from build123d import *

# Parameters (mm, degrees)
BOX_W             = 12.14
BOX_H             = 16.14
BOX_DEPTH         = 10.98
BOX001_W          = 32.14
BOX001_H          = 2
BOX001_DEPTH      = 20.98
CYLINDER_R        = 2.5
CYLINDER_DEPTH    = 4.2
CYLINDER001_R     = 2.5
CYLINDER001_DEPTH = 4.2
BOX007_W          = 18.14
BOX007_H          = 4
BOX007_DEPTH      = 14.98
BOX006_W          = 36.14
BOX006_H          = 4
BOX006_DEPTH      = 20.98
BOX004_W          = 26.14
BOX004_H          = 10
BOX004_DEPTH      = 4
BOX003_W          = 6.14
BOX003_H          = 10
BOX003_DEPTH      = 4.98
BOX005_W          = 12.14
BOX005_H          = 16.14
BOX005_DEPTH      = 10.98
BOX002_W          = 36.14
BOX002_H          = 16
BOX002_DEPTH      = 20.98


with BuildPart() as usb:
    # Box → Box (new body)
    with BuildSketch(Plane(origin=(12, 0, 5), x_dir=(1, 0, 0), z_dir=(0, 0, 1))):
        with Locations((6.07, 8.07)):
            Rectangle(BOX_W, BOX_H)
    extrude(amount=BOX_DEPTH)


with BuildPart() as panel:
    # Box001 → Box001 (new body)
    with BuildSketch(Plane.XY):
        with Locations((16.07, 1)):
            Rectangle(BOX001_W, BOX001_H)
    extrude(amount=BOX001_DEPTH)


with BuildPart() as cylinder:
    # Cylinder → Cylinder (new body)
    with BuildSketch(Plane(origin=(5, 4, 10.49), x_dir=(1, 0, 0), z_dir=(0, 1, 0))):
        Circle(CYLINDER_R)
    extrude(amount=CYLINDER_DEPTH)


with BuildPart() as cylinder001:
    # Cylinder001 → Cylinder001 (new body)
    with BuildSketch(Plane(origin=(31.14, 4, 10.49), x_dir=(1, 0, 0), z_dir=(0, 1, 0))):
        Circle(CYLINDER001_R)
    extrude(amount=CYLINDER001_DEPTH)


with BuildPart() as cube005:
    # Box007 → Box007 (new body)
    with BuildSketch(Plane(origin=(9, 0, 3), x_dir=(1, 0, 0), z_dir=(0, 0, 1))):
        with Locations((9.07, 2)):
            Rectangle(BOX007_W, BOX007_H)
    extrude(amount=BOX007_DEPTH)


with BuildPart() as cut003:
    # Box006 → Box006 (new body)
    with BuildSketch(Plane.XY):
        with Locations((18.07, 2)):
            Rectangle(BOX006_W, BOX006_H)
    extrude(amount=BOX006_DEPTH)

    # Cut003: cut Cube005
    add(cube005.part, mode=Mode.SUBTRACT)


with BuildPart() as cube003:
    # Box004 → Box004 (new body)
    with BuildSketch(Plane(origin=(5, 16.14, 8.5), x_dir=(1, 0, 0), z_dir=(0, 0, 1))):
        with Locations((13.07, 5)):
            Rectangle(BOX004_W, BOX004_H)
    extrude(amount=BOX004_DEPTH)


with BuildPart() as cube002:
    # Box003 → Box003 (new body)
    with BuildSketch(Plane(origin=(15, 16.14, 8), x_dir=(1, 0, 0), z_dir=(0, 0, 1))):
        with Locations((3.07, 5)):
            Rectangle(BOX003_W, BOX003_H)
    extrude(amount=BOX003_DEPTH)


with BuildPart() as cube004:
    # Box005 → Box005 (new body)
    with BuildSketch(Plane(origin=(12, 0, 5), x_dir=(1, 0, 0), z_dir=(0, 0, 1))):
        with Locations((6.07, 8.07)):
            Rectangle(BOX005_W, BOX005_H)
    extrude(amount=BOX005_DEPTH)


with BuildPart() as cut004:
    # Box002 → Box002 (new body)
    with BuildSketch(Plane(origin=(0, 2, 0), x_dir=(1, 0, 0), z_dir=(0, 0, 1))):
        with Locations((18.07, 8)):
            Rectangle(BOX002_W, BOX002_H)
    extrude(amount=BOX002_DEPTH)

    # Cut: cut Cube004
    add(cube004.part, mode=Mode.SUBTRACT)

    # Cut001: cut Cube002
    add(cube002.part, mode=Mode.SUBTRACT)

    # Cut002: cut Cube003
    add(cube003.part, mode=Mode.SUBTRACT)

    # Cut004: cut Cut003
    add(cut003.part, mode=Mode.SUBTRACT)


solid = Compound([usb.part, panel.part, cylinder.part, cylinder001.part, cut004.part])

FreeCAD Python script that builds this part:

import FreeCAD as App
import Part
import Sketcher
from FreeCAD import Vector


def add_polygon(sketch, points):
    """Adds a closed chain of lines whose ends are joined by coincident constraints."""
    first, n = sketch.GeometryCount, len(points)
    for a, b in zip(points, points[1:] + points[:1]):
        sketch.addGeometry(Part.LineSegment(App.Vector(*a, 0), App.Vector(*b, 0)), False)
    for i in range(n):
        sketch.addConstraint(Sketcher.Constraint("Coincident", first + i, 2, first + (i + 1) % n, 1))

doc = App.newDocument("Part")
params = doc.addObject("Spreadsheet::Sheet", "Params")
for row, (alias, value) in enumerate([
    ("sketch1_width", "12.14 mm"),
    ("sketch1_height", "16.14 mm"),
    ("pad1_length", "10.98 mm"),
    ("sketch2_height", "2 mm"),
    ("sketch2_width", "32.14 mm"),
    ("pad2_length", "20.98 mm"),
    ("sketch3_diameter", "5 mm"),
    ("pad3_length", "4.2 mm"),
    ("sketch4_diameter", "5 mm"),
    ("pad4_length", "4.2 mm"),
    ("sketch5_height", "4 mm"),
    ("sketch5_width", "18.14 mm"),
    ("pad5_length", "14.98 mm"),
    ("sketch6_height", "4 mm"),
    ("sketch6_width", "36.14 mm"),
    ("pad6_length", "20.98 mm"),
    ("sketch7_height", "10 mm"),
    ("sketch7_width", "26.14 mm"),
    ("pad7_length", "4 mm"),
    ("sketch8_height", "10 mm"),
    ("sketch8_width", "6.14 mm"),
    ("pad8_length", "4.98 mm"),
    ("sketch9_width", "12.14 mm"),
    ("sketch9_height", "16.14 mm"),
    ("pad9_length", "10.98 mm"),
    ("sketch10_height", "16 mm"),
    ("sketch10_width", "36.14 mm"),
    ("pad10_length", "20.98 mm"),
], start=1):
    params.set(f"A{row}", alias)
    params.set(f"B{row}", "=" + value)
    params.setAlias(f"B{row}", alias)

body = doc.addObject("PartDesign::Body", "Body")

# Sketch on XY plane
sketch1 = body.newObject("Sketcher::SketchObject", "Sketch")
sketch1.AttachmentSupport = (doc.getObject("XY_Plane"), [""])
sketch1.MapMode = "FlatFace"
sketch1.AttachmentOffset = App.Placement(Vector(0, 0, 5), App.Rotation())
add_polygon(sketch1, [(12, 16.14), (12, 0), (24.14, 0), (24.14, 16.14)])  # lines 0-3
sketch1.addConstraint(Sketcher.Constraint("Vertical", 0))
sketch1.addConstraint(Sketcher.Constraint("Horizontal", 1))
sketch1.addConstraint(Sketcher.Constraint("Vertical", 2))
sketch1.addConstraint(Sketcher.Constraint("Horizontal", 3))
sketch1.addConstraint(Sketcher.Constraint("PointOnObject", 0, 2, -1))
sketch1.addConstraint(Sketcher.Constraint("DistanceX", -1, 1, 0, 2, 12.0))
sketch1.addConstraint(Sketcher.Constraint("DistanceX", 1, 1, 1, 2, 12.14))
sketch1.addConstraint(Sketcher.Constraint("DistanceY", 0, 2, 0, 1, 16.14))
sketch1.setExpression("Constraints[10]", "Params.sketch1_width")
sketch1.setExpression("Constraints[11]", "Params.sketch1_height")
pad1 = body.newObject("PartDesign::Pad", "Pad")
pad1.Profile = sketch1
pad1.setExpression("Length", "Params.pad1_length")
body2 = doc.addObject("PartDesign::Body", "Body001")

# Sketch on XY plane
sketch2 = body2.newObject("Sketcher::SketchObject", "Sketch001")
sketch2.AttachmentSupport = (doc.getObject("XY_Plane001"), [""])
sketch2.MapMode = "FlatFace"
add_polygon(sketch2, [(0, 2), (0, 0), (32.14, 0), (32.14, 2)])  # lines 0-3
sketch2.addConstraint(Sketcher.Constraint("Vertical", 0))
sketch2.addConstraint(Sketcher.Constraint("Horizontal", 1))
sketch2.addConstraint(Sketcher.Constraint("Vertical", 2))
sketch2.addConstraint(Sketcher.Constraint("Horizontal", 3))
sketch2.addConstraint(Sketcher.Constraint("Coincident", 0, 2, -1, 1))
sketch2.addConstraint(Sketcher.Constraint("DistanceY", 0, 2, 0, 1, 2.0))
sketch2.addConstraint(Sketcher.Constraint("DistanceX", 1, 1, 1, 2, 32.14))
sketch2.setExpression("Constraints[9]", "Params.sketch2_height")
sketch2.setExpression("Constraints[10]", "Params.sketch2_width")
pad2 = body2.newObject("PartDesign::Pad", "Pad001")
pad2.Profile = sketch2
pad2.setExpression("Length", "Params.pad2_length")
body3 = doc.addObject("PartDesign::Body", "Body002")

# Sketch on XZ plane
sketch3 = body3.newObject("Sketcher::SketchObject", "Sketch002")
sketch3.AttachmentSupport = (doc.getObject("XZ_Plane002"), [""])
sketch3.MapMode = "FlatFace"
sketch3.AttachmentOffset = App.Placement(Vector(0, 0, -4), App.Rotation())
sketch3.addGeometry(Part.Circle(Vector(5, 10.49, 0), Vector(0, 0, 1), 2.5), False)
sketch3.addConstraint(Sketcher.Constraint("Diameter", 0, 5.0))
sketch3.addConstraint(Sketcher.Constraint("DistanceX", -1, 1, 0, 3, 5.0))
sketch3.addConstraint(Sketcher.Constraint("DistanceY", -1, 1, 0, 3, 10.49))
sketch3.setExpression("Constraints[0]", "Params.sketch3_diameter")
pad3 = body3.newObject("PartDesign::Pad", "Pad002")
pad3.Profile = sketch3
pad3.setExpression("Length", "Params.pad3_length")
pad3.Reversed = True
body4 = doc.addObject("PartDesign::Body", "Body003")

# Sketch on XZ plane
sketch4 = body4.newObject("Sketcher::SketchObject", "Sketch003")
sketch4.AttachmentSupport = (doc.getObject("XZ_Plane003"), [""])
sketch4.MapMode = "FlatFace"
sketch4.AttachmentOffset = App.Placement(Vector(0, 0, -4), App.Rotation())
sketch4.addGeometry(Part.Circle(Vector(31.14, 10.49, 0), Vector(0, 0, 1), 2.5), False)
sketch4.addConstraint(Sketcher.Constraint("Diameter", 0, 5.0))
sketch4.addConstraint(Sketcher.Constraint("DistanceX", -1, 1, 0, 3, 31.14))
sketch4.addConstraint(Sketcher.Constraint("DistanceY", -1, 1, 0, 3, 10.49))
sketch4.setExpression("Constraints[0]", "Params.sketch4_diameter")
pad4 = body4.newObject("PartDesign::Pad", "Pad003")
pad4.Profile = sketch4
pad4.setExpression("Length", "Params.pad4_length")
pad4.Reversed = True
body5 = doc.addObject("PartDesign::Body", "Body004")

# Sketch on XY plane
sketch5 = body5.newObject("Sketcher::SketchObject", "Sketch004")
sketch5.AttachmentSupport = (doc.getObject("XY_Plane004"), [""])
sketch5.MapMode = "FlatFace"
sketch5.AttachmentOffset = App.Placement(Vector(0, 0, 3), App.Rotation())
add_polygon(sketch5, [(9, 4), (9, 0), (27.14, 0), (27.14, 4)])  # lines 0-3
sketch5.addConstraint(Sketcher.Constraint("Vertical", 0))
sketch5.addConstraint(Sketcher.Constraint("Horizontal", 1))
sketch5.addConstraint(Sketcher.Constraint("Vertical", 2))
sketch5.addConstraint(Sketcher.Constraint("Horizontal", 3))
sketch5.addConstraint(Sketcher.Constraint("PointOnObject", 0, 2, -1))
sketch5.addConstraint(Sketcher.Constraint("DistanceY", 0, 2, 0, 1, 4.0))
sketch5.addConstraint(Sketcher.Constraint("DistanceX", -1, 1, 0, 2, 9.0))
sketch5.addConstraint(Sketcher.Constraint("DistanceX", 1, 1, 1, 2, 18.14))
sketch5.setExpression("Constraints[9]", "Params.sketch5_height")
sketch5.setExpression("Constraints[11]", "Params.sketch5_width")
pad5 = body5.newObject("PartDesign::Pad", "Pad004")
pad5.Profile = sketch5
pad5.setExpression("Length", "Params.pad5_length")
body6 = doc.addObject("PartDesign::Body", "Body005")

# Sketch on XY plane
sketch6 = body6.newObject("Sketcher::SketchObject", "Sketch005")
sketch6.AttachmentSupport = (doc.getObject("XY_Plane005"), [""])
sketch6.MapMode = "FlatFace"
add_polygon(sketch6, [(0, 4), (0, 0), (36.14, 0), (36.14, 4)])  # lines 0-3
sketch6.addConstraint(Sketcher.Constraint("Vertical", 0))
sketch6.addConstraint(Sketcher.Constraint("Horizontal", 1))
sketch6.addConstraint(Sketcher.Constraint("Vertical", 2))
sketch6.addConstraint(Sketcher.Constraint("Horizontal", 3))
sketch6.addConstraint(Sketcher.Constraint("Coincident", 0, 2, -1, 1))
sketch6.addConstraint(Sketcher.Constraint("DistanceY", 0, 2, 0, 1, 4.0))
sketch6.addConstraint(Sketcher.Constraint("DistanceX", 1, 1, 1, 2, 36.14))
sketch6.setExpression("Constraints[9]", "Params.sketch6_height")
sketch6.setExpression("Constraints[10]", "Params.sketch6_width")
pad6 = body6.newObject("PartDesign::Pad", "Pad005")
pad6.Profile = sketch6
pad6.setExpression("Length", "Params.pad6_length")
doc.recompute()

boolean = body6.newObject("PartDesign::Boolean", "Boolean")
boolean.Type = "Cut"
boolean.addObjects([body5])
body7 = doc.addObject("PartDesign::Body", "Body006")

# Sketch on XY plane
sketch7 = body7.newObject("Sketcher::SketchObject", "Sketch006")
sketch7.AttachmentSupport = (doc.getObject("XY_Plane006"), [""])
sketch7.MapMode = "FlatFace"
sketch7.AttachmentOffset = App.Placement(Vector(0, 0, 8.5), App.Rotation())
add_polygon(sketch7, [(5, 26.14), (5, 16.14), (31.14, 16.14), (31.14, 26.14)])  # lines 0-3
sketch7.addConstraint(Sketcher.Constraint("Vertical", 0))
sketch7.addConstraint(Sketcher.Constraint("Horizontal", 1))
sketch7.addConstraint(Sketcher.Constraint("Vertical", 2))
sketch7.addConstraint(Sketcher.Constraint("Horizontal", 3))
sketch7.addConstraint(Sketcher.Constraint("DistanceY", 0, 2, 0, 1, 10.0))
sketch7.addConstraint(Sketcher.Constraint("DistanceX", -1, 1, 0, 2, 5.0))
sketch7.addConstraint(Sketcher.Constraint("DistanceX", 1, 1, 1, 2, 26.14))
sketch7.addConstraint(Sketcher.Constraint("DistanceY", -1, 1, 0, 2, 16.14))
sketch7.setExpression("Constraints[8]", "Params.sketch7_height")
sketch7.setExpression("Constraints[10]", "Params.sketch7_width")
pad7 = body7.newObject("PartDesign::Pad", "Pad006")
pad7.Profile = sketch7
pad7.setExpression("Length", "Params.pad7_length")
body8 = doc.addObject("PartDesign::Body", "Body007")

# Sketch on XY plane
sketch8 = body8.newObject("Sketcher::SketchObject", "Sketch007")
sketch8.AttachmentSupport = (doc.getObject("XY_Plane007"), [""])
sketch8.MapMode = "FlatFace"
sketch8.AttachmentOffset = App.Placement(Vector(0, 0, 8), App.Rotation())
add_polygon(sketch8, [(15, 26.14), (15, 16.14), (21.14, 16.14), (21.14, 26.14)])  # lines 0-3
sketch8.addConstraint(Sketcher.Constraint("Vertical", 0))
sketch8.addConstraint(Sketcher.Constraint("Horizontal", 1))
sketch8.addConstraint(Sketcher.Constraint("Vertical", 2))
sketch8.addConstraint(Sketcher.Constraint("Horizontal", 3))
sketch8.addConstraint(Sketcher.Constraint("DistanceY", 0, 2, 0, 1, 10.0))
sketch8.addConstraint(Sketcher.Constraint("DistanceX", -1, 1, 0, 2, 15.0))
sketch8.addConstraint(Sketcher.Constraint("DistanceX", 1, 1, 1, 2, 6.14))
sketch8.addConstraint(Sketcher.Constraint("DistanceY", -1, 1, 0, 2, 16.14))
sketch8.setExpression("Constraints[8]", "Params.sketch8_height")
sketch8.setExpression("Constraints[10]", "Params.sketch8_width")
pad8 = body8.newObject("PartDesign::Pad", "Pad007")
pad8.Profile = sketch8
pad8.setExpression("Length", "Params.pad8_length")
body9 = doc.addObject("PartDesign::Body", "Body008")

# Sketch on XY plane
sketch9 = body9.newObject("Sketcher::SketchObject", "Sketch008")
sketch9.AttachmentSupport = (doc.getObject("XY_Plane008"), [""])
sketch9.MapMode = "FlatFace"
sketch9.AttachmentOffset = App.Placement(Vector(0, 0, 5), App.Rotation())
add_polygon(sketch9, [(12, 16.14), (12, 0), (24.14, 0), (24.14, 16.14)])  # lines 0-3
sketch9.addConstraint(Sketcher.Constraint("Vertical", 0))
sketch9.addConstraint(Sketcher.Constraint("Horizontal", 1))
sketch9.addConstraint(Sketcher.Constraint("Vertical", 2))
sketch9.addConstraint(Sketcher.Constraint("Horizontal", 3))
sketch9.addConstraint(Sketcher.Constraint("PointOnObject", 0, 2, -1))
sketch9.addConstraint(Sketcher.Constraint("DistanceX", -1, 1, 0, 2, 12.0))
sketch9.addConstraint(Sketcher.Constraint("DistanceX", 1, 1, 1, 2, 12.14))
sketch9.addConstraint(Sketcher.Constraint("DistanceY", 0, 2, 0, 1, 16.14))
sketch9.setExpression("Constraints[10]", "Params.sketch9_width")
sketch9.setExpression("Constraints[11]", "Params.sketch9_height")
pad9 = body9.newObject("PartDesign::Pad", "Pad008")
pad9.Profile = sketch9
pad9.setExpression("Length", "Params.pad9_length")
body10 = doc.addObject("PartDesign::Body", "Body009")

# Sketch on XY plane
sketch10 = body10.newObject("Sketcher::SketchObject", "Sketch009")
sketch10.AttachmentSupport = (doc.getObject("XY_Plane009"), [""])
sketch10.MapMode = "FlatFace"
add_polygon(sketch10, [(0, 18), (0, 2), (36.14, 2), (36.14, 18)])  # lines 0-3
sketch10.addConstraint(Sketcher.Constraint("Vertical", 0))
sketch10.addConstraint(Sketcher.Constraint("Horizontal", 1))
sketch10.addConstraint(Sketcher.Constraint("Vertical", 2))
sketch10.addConstraint(Sketcher.Constraint("Horizontal", 3))
sketch10.addConstraint(Sketcher.Constraint("PointOnObject", 0, 2, -2))
sketch10.addConstraint(Sketcher.Constraint("DistanceY", 0, 2, 0, 1, 16.0))
sketch10.addConstraint(Sketcher.Constraint("DistanceY", -1, 1, 0, 2, 2.0))
sketch10.addConstraint(Sketcher.Constraint("DistanceX", 1, 1, 1, 2, 36.14))
sketch10.setExpression("Constraints[9]", "Params.sketch10_height")
sketch10.setExpression("Constraints[11]", "Params.sketch10_width")
pad10 = body10.newObject("PartDesign::Pad", "Pad009")
pad10.Profile = sketch10
pad10.setExpression("Length", "Params.pad10_length")
doc.recompute()

boolean2 = body10.newObject("PartDesign::Boolean", "Boolean001")
boolean2.Type = "Cut"
boolean2.addObjects([body9])
doc.recompute()

boolean3 = body10.newObject("PartDesign::Boolean", "Boolean002")
boolean3.Type = "Cut"
boolean3.addObjects([body8])
doc.recompute()

boolean4 = body10.newObject("PartDesign::Boolean", "Boolean003")
boolean4.Type = "Cut"
boolean4.addObjects([body7])
doc.recompute()

boolean5 = body10.newObject("PartDesign::Boolean", "Boolean004")
boolean5.Type = "Cut"
boolean5.addObjects([body6])

doc.recompute()
